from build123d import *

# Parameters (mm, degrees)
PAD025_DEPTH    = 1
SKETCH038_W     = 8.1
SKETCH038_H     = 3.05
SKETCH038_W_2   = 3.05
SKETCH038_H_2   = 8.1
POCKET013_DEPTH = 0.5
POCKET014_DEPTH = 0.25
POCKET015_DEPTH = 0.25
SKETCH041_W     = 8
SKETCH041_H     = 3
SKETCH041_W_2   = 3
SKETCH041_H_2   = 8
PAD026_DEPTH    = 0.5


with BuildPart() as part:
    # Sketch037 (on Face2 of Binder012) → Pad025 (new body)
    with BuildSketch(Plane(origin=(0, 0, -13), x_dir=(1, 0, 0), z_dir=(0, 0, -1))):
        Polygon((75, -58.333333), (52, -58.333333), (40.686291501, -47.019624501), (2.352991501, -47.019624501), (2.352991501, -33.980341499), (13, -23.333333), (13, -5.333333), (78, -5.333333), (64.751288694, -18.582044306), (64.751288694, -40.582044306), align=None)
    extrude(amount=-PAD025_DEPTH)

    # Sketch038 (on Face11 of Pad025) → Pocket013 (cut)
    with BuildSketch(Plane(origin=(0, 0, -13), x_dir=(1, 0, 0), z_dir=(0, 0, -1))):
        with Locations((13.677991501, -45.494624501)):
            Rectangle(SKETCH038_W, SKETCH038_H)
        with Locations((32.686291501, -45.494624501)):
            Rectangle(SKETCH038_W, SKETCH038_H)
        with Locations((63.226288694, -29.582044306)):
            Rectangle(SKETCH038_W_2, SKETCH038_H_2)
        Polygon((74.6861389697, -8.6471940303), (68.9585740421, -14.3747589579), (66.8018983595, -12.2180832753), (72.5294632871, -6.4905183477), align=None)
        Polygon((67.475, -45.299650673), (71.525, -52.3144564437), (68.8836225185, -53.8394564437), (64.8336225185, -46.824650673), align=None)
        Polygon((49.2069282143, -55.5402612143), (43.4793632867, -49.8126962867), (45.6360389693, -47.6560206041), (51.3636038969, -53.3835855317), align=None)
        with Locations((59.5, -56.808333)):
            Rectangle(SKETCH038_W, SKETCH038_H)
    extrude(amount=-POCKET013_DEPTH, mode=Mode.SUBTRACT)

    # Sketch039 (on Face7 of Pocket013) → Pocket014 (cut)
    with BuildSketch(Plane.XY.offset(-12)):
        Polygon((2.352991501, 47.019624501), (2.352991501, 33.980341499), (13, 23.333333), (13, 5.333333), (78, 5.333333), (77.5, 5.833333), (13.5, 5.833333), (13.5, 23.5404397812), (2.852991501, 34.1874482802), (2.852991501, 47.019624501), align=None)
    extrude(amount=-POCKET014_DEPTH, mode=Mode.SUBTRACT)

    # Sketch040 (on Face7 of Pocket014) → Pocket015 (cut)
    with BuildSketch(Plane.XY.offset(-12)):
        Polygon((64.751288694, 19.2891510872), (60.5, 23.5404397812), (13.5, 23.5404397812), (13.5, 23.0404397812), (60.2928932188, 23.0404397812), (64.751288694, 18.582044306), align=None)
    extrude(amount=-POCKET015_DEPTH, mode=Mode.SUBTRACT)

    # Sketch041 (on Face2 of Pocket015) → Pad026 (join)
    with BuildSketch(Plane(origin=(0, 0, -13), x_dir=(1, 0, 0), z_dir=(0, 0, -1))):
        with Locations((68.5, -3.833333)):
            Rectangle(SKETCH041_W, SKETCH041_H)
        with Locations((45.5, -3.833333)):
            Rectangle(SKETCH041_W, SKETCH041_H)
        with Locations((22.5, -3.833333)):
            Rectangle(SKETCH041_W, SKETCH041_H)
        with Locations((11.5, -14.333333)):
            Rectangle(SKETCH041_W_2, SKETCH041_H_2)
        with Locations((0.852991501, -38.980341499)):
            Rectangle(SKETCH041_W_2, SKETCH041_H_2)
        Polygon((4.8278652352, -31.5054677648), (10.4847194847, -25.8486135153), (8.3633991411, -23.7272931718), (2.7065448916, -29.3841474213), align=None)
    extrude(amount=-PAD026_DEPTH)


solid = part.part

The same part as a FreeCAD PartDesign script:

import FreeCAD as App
import Part
import Sketcher
from FreeCAD import Vector
Q = App.Units.Quantity


def add_polygon(sketch, points):
    """Adds a closed chain of lines whose ends are joined by coincident constraints."""
    first, n = sketch.GeometryCount, len(points)
    for a, b in zip(points, points[1:] + points[:1]):
        sketch.addGeometry(Part.LineSegment(App.Vector(*a, 0), App.Vector(*b, 0)), False)
    for i in range(n):
        sketch.addConstraint(Sketcher.Constraint("Coincident", first + i, 2, first + (i + 1) % n, 1))

doc = App.newDocument("Part")
body = doc.addObject("PartDesign::Body", "Body")

# Sketch on XY plane
sketch1 = body.newObject("Sketcher::SketchObject", "Sketch")
sketch1.AttachmentSupport = (doc.getObject("XY_Plane"), [""])
sketch1.MapMode = "FlatFace"
sketch1.AttachmentOffset = App.Placement(Vector(0, 0, -13), App.Rotation())
add_polygon(sketch1, [(52, 58.333333), (75, 58.333333), (64.751289, 40.582044), (64.751289, 18.582044), (78, 5.333333), (13, 5.333333), (13, 23.333333), (2.352992, 33.980341), (2.352992, 47.019625), (40.686292, 47.019625)])  # lines 0-9
sketch1.addConstraint([
    Sketcher.Constraint("Horizontal", 0),
    Sketcher.Constraint("Vertical", 2),
    Sketcher.Constraint("Horizontal", 4),
    Sketcher.Constraint("Vertical", 5),
    Sketcher.Constraint("Vertical", 7),
    Sketcher.Constraint("Horizontal", 8),
    Sketcher.Constraint("Parallel", 3, 6),
    Sketcher.Constraint("Perpendicular", 6, 9),
    Sketcher.Constraint("DistanceX", 0, 1, 0, 2, Q("23 mm")),
    Sketcher.Constraint("DistanceX", 4, 2, 4, 1, Q("65 mm")),
    Sketcher.Constraint("DistanceY", 2, 2, 2, 1, Q("22 mm")),
    Sketcher.Constraint("DistanceY", 5, 1, 5, 2, Q("18 mm")),
    Sketcher.Constraint("Angle", 1, Q("-120 deg")),
    Sketcher.Constraint("Angle", 3, Q("-45 deg")),
    Sketcher.Constraint("Distance", 9, Q("16 mm")),
    Sketcher.Constraint("DistanceX", -1, 1, 0, 2, Q("75 mm")),
    Sketcher.Constraint("DistanceX", -1, 1, 3, 2, Q("78 mm")),
    Sketcher.Constraint("DistanceY", 3, 2, 0, 2, Q("53 mm")),
    Sketcher.Constraint("DistanceX", 8, 1, 8, 2, Q("38.3333 mm")),
    Sketcher.Constraint("DistanceY", -1, 1, 6, 2, Q("33.980341 mm")),
])
pad1 = body.newObject("PartDesign::Pad", "Pad")
pad1.Profile = sketch1
pad1.Length = 1

# Sketch on XY plane
sketch2 = body.newObject("Sketcher::SketchObject", "Sketch001")
sketch2.AttachmentSupport = (doc.getObject("XY_Plane"), [""])
sketch2.MapMode = "FlatFace"
sketch2.AttachmentOffset = App.Placement(Vector(0, 0, -13), App.Rotation())
add_polygon(sketch2, [(9.627992, 43.969625), (9.627992, 47.019625), (17.727992, 47.019625), (17.727992, 43.969625)])  # lines 0-3
add_polygon(sketch2, [(28.636292, 43.969625), (28.636292, 47.019625), (36.736292, 47.019625), (36.736292, 43.969625)])  # lines 4-7
add_polygon(sketch2, [(61.701289, 25.532044), (61.701289, 33.632044), (64.751289, 33.632044), (64.751289, 25.532044)])  # lines 8-11
add_polygon(sketch2, [(68.958574, 14.374759), (74.686139, 8.647194), (72.529463, 6.490518), (66.801898, 12.218083)])  # lines 12-15
add_polygon(sketch2, [(71.525, 52.314456), (67.475, 45.299651), (64.833623, 46.824651), (68.883623, 53.839456)])  # lines 16-19
add_polygon(sketch2, [(43.479363, 49.812696), (49.206928, 55.540261), (51.363604, 53.383586), (45.636039, 47.656021)])  # lines 20-23
add_polygon(sketch2, [(55.45, 55.283333), (55.45, 58.333333), (63.55, 58.333333), (63.55, 55.283333)])  # lines 24-27
sketch2.addConstraint([
    Sketcher.Constraint("Vertical", 0),
    Sketcher.Constraint("Horizontal", 1),
    Sketcher.Constraint("Vertical", 2),
    Sketcher.Constraint("Horizontal", 3),
    Sketcher.Constraint("Vertical", 4),
    Sketcher.Constraint("Horizontal", 5),
    Sketcher.Constraint("Vertical", 6),
    Sketcher.Constraint("Horizontal", 7),
    Sketcher.Constraint("Vertical", 8),
    Sketcher.Constraint("Horizontal", 9),
    Sketcher.Constraint("Vertical", 10),
    Sketcher.Constraint("Horizontal", 11),
    Sketcher.Constraint("Vertical", 24),
    Sketcher.Constraint("Horizontal", 25),
    Sketcher.Constraint("Vertical", 26),
    Sketcher.Constraint("Horizontal", 27),
    Sketcher.Constraint("Perpendicular", 12, 13),
    Sketcher.Constraint("Perpendicular", 13, 14),
    Sketcher.Constraint("Perpendicular", 14, 15),
    Sketcher.Constraint("Perpendicular", 16, 17),
    Sketcher.Constraint("Perpendicular", 17, 18),
    Sketcher.Constraint("Perpendicular", 18, 19),
    Sketcher.Constraint("Parallel", 15, 20),
    Sketcher.Constraint("Perpendicular", 20, 21),
    Sketcher.Constraint("Perpendicular", 21, 22),
    Sketcher.Constraint("Perpendicular", 22, 23),
    Sketcher.Constraint("Horizontal", 1, 2, 4, 2),
    Sketcher.Constraint("Horizontal", 3, 2, 6, 2),
    Sketcher.Constraint("Equal", 3, 5),
    Sketcher.Constraint("Equal", 7, 25),
    Sketcher.Constraint("Equal", 11, 0),
    Sketcher.Constraint("Equal", 27, 8),
    Sketcher.Constraint("Equal", 6, 24),
    Sketcher.Constraint("Equal", 14, 16),
    Sketcher.Constraint("Equal", 15, 17),
    Sketcher.Constraint("Equal", 18, 20),
    Sketcher.Constraint("Equal", 19, 21),
    Sketcher.Constraint("Angle", 12, Q("-45 deg")),
    Sketcher.Constraint("Angle", 16, Q("-120 deg")),
    Sketcher.Constraint("DistanceX", 1, 1, 1, 2, Q("8.1 mm")),
    Sketcher.Constraint("Distance", 12, Q("8.1 mm")),
    Sketcher.Constraint("DistanceX", 9, 1, 9, 2, Q("3.05 mm")),
    Sketcher.Constraint("Distance", 13, Q("3.05 mm")),
    Sketcher.Constraint("DistanceX", -1, 1, 24, 2, Q("55.45 mm")),
    Sketcher.Constraint("DistanceX", -1, 1, 16, 2, Q("67.475 mm")),
    Sketcher.Constraint("DistanceX", -1, 1, 14, 2, Q("66.801898 mm")),
    Sketcher.Constraint("DistanceX", 1, 2, 4, 2, Q("10.9083 mm")),
    Sketcher.Constraint("DistanceX", -1, 1, 0, 2, Q("9.627992 mm")),
    Sketcher.Constraint("DistanceX", -1, 1, 8, 2, Q("61.701289 mm")),
    Sketcher.Constraint("DistanceY", -1, 1, 13, 2, Q("6.490518 mm")),
    Sketcher.Constraint("DistanceY", -1, 1, 16, 2, Q("45.299651 mm")),
    Sketcher.Constraint("DistanceX", -1, 1, 20, 2, Q("49.206928 mm")),
    Sketcher.Constraint("DistanceY", -1, 1, 20, 2, Q("55.540261 mm")),
    Sketcher.Constraint("DistanceY", 8, 2, 6, 2, Q("10.33758 mm")),
    Sketcher.Constraint("DistanceY", 12, 2, 10, 2, Q("16.88485 mm")),
    Sketcher.Constraint("DistanceY", 20, 2, 24, 2, Q("2.793072 mm")),
])
pocket1 = body.newObject("PartDesign::Pocket", "Pocket")
pocket1.Profile = sketch2
pocket1.Length = 0.5
pocket1.Reversed = True

# Sketch on XY plane
sketch3 = body.newObject("Sketcher::SketchObject", "Sketch002")
sketch3.AttachmentSupport = (doc.getObject("XY_Plane"), [""])
sketch3.MapMode = "FlatFace"
sketch3.AttachmentOffset = App.Placement(Vector(0, 0, -12), App.Rotation())
add_polygon(sketch3, [(2.352992, 47.019625), (2.352992, 33.980341), (13, 23.333333), (13, 5.333333), (78, 5.333333), (77.5, 5.833333), (13.5, 5.833333), (13.5, 23.54044), (2.852992, 34.187448), (2.852992, 47.019625)])  # lines 0-9
sketch3.addConstraint([
    Sketcher.Constraint("Vertical", 0),
    Sketcher.Constraint("Vertical", 2),
    Sketcher.Constraint("Horizontal", 3),
    Sketcher.Constraint("Horizontal", 5),
    Sketcher.Constraint("Vertical", 6),
    Sketcher.Constraint("Vertical", 8),
    Sketcher.Constraint("Horizontal", 9),
    Sketcher.Constraint("Parallel", 1, 4),
    Sketcher.Constraint("Parallel", 4, 7),
    Sketcher.Constraint("Equal", 1, 7),
    Sketcher.Constraint("DistanceX", 3, 1, 3, 2, Q("65 mm")),
    Sketcher.Constraint("DistanceX", 5, 2, 5, 1, Q("64 mm")),
    Sketcher.Constraint("DistanceY", 2, 2, 2, 1, Q("18 mm")),
    Sketcher.Constraint("Angle", 1, Q("-45 deg")),
    Sketcher.Constraint("DistanceX", 9, 2, 9, 1, Q("0.5 mm")),
    Sketcher.Constraint("DistanceX", -1, 1, 1, 2, Q("13 mm")),
    Sketcher.Constraint("DistanceY", 6, 2, 0, 2, Q("10.439902 mm")),
    Sketcher.Constraint("DistanceY", 0, 2, 0, 1, Q("13.039283 mm")),
    Sketcher.Constraint("DistanceY", 6, 1, 6, 2, Q("17.707107 mm")),
    Sketcher.Constraint("DistanceY", -1, 1, 0, 2, Q("33.980341 mm")),
])
pocket2 = body.newObject("PartDesign::Pocket", "Pocket001")
pocket2.Profile = sketch3
pocket2.Length = 0.25

# Sketch on XY plane
sketch4 = body.newObject("Sketcher::SketchObject", "Sketch003")
sketch4.AttachmentSupport = (doc.getObject("XY_Plane"), [""])
sketch4.MapMode = "FlatFace"
sketch4.AttachmentOffset = App.Placement(Vector(0, 0, -12), App.Rotation())
add_polygon(sketch4, [(64.751289, 19.289151), (60.5, 23.54044), (13.5, 23.54044), (13.5, 23.04044), (60.292893, 23.04044), (64.751289, 18.582044)])  # lines 0-5
sketch4.addConstraint([
    Sketcher.Constraint("Horizontal", 1),
    Sketcher.Constraint("Vertical", 2),
    Sketcher.Constraint("Horizontal", 3),
    Sketcher.Constraint("Vertical", 5),
    Sketcher.Constraint("Parallel", 0, 4),
    Sketcher.Constraint("DistanceX", 1, 2, 1, 1, Q("47 mm")),
    Sketcher.Constraint("Angle", 0, Q("135 deg")),
    Sketcher.Constraint("DistanceY", 2, 2, 2, 1, Q("0.5 mm")),
    Sketcher.Constraint("DistanceX", -1, 1, 0, 2, Q("60.5 mm")),
    Sketcher.Constraint("Distance", 0, Q("6.01223 mm")),
    Sketcher.Constraint("DistanceX", 3, 1, 3, 2, Q("46.792893 mm")),
    Sketcher.Constraint("DistanceY", -1, 1, 0, 2, Q("23.54044 mm")),
])
pocket3 = body.newObject("PartDesign::Pocket", "Pocket002")
pocket3.Profile = sketch4
pocket3.Length = 0.25

# Sketch on XY plane
sketch5 = body.newObject("Sketcher::SketchObject", "Sketch004")
sketch5.AttachmentSupport = (doc.getObject("XY_Plane"), [""])
sketch5.MapMode = "FlatFace"
sketch5.AttachmentOffset = App.Placement(Vector(0, 0, -13), App.Rotation())
add_polygon(sketch5, [(64.5, 2.333333), (64.5, 5.333333), (72.5, 5.333333), (72.5, 2.333333)])  # lines 0-3
add_polygon(sketch5, [(41.5, 2.333333), (41.5, 5.333333), (49.5, 5.333333), (49.5, 2.333333)])  # lines 4-7
add_polygon(sketch5, [(18.5, 2.333333), (18.5, 5.333333), (26.5, 5.333333), (26.5, 2.333333)])  # lines 8-11
add_polygon(sketch5, [(10, 10.333333), (10, 18.333333), (13, 18.333333), (13, 10.333333)])  # lines 12-15
add_polygon(sketch5, [(-0.647008, 34.980341), (-0.647008, 42.980341), (2.352992, 42.980341), (2.352992, 34.980341)])  # lines 16-19
add_polygon(sketch5, [(4.827865, 31.505468), (10.484719, 25.848614), (8.363399, 23.727293), (2.706545, 29.384147)])  # lines 20-23
sketch5.addConstraint([
    Sketcher.Constraint("Vertical", 0),
    Sketcher.Constraint("Horizontal", 1),
    Sketcher.Constraint("Vertical", 2),
    Sketcher.Constraint("Horizontal", 3),
    Sketcher.Constraint("Vertical", 4),
    Sketcher.Constraint("Horizontal", 5),
    Sketcher.Constraint("Vertical", 6),
    Sketcher.Constraint("Horizontal", 7),
    Sketcher.Constraint("Vertical", 8),
    Sketcher.Constraint("Horizontal", 9),
    Sketcher.Constraint("Vertical", 10),
    Sketcher.Constraint("Horizontal", 11),
    Sketcher.Constraint("Vertical", 12),
    Sketcher.Constraint("Horizontal", 13),
    Sketcher.Constraint("Vertical", 14),
    Sketcher.Constraint("Horizontal", 15),
    Sketcher.Constraint("Vertical", 16),
    Sketcher.Constraint("Horizontal", 17),
    Sketcher.Constraint("Vertical", 18),
    Sketcher.Constraint("Horizontal", 19),
    Sketcher.Constraint("Perpendicular", 20, 21),
    Sketcher.Constraint("Perpendicular", 21, 22),
    Sketcher.Constraint("Perpendicular", 22, 23),
    Sketcher.Constraint("Horizontal", 1, 2, 4, 2),
    Sketcher.Constraint("Horizontal", 3, 2, 6, 2),
    Sketcher.Constraint("Horizontal", 5, 2, 8, 2),
    Sketcher.Constraint("Horizontal", 7, 2, 10, 2),
    Sketcher.Constraint("Equal", 3, 5),
    Sketcher.Constraint("Equal", 7, 9),
    Sketcher.Constraint("Equal", 15, 17),
    Sketcher.Constraint("Equal", 19, 0),
    Sketcher.Constraint("Equal", 11, 12),
    Sketcher.Constraint("Equal", 14, 16),
    Sketcher.Constraint("DistanceX", 1, 1, 1, 2, Q("8 mm")),
    Sketcher.Constraint("DistanceX", 13, 1, 13, 2, Q("3 mm")),
    Sketcher.Constraint("Angle", 20, Q("-45 deg")),
    Sketcher.Constraint("Distance", 20, Q("8 mm")),
    Sketcher.Constraint("Distance", 21, Q("3 mm")),
    Sketcher.Constraint("DistanceX", -1, 1, 12, 2, Q("10 mm")),
    Sketcher.Constraint("DistanceX", 4, 2, 0, 2, Q("23 mm")),
    Sketcher.Constraint("DistanceX", 8, 2, 4, 2, Q("23 mm")),
    Sketcher.Constraint("DistanceY", 8, 2, 12, 2, Q("13 mm")),
    Sketcher.Constraint("DistanceX", -1, 1, 0, 2, Q("64.5 mm")),
    Sketcher.Constraint("DistanceX", -1, 1, 21, 2, Q("8.363399 mm")),
    Sketcher.Constraint("DistanceX", 16, 2, -1, 1, Q("0.647008 mm")),
    Sketcher.Constraint("DistanceY", -1, 1, 16, 2, Q("42.980341 mm")),
    Sketcher.Constraint("DistanceY", 12, 2, 16, 2, Q("24.647008 mm")),
    Sketcher.Constraint("DistanceY", 12, 2, 20, 2, Q("7.515281 mm")),
])
pad2 = body.newObject("PartDesign::Pad", "Pad001")
pad2.Profile = sketch5
pad2.Length = 0.5

doc.recompute()
